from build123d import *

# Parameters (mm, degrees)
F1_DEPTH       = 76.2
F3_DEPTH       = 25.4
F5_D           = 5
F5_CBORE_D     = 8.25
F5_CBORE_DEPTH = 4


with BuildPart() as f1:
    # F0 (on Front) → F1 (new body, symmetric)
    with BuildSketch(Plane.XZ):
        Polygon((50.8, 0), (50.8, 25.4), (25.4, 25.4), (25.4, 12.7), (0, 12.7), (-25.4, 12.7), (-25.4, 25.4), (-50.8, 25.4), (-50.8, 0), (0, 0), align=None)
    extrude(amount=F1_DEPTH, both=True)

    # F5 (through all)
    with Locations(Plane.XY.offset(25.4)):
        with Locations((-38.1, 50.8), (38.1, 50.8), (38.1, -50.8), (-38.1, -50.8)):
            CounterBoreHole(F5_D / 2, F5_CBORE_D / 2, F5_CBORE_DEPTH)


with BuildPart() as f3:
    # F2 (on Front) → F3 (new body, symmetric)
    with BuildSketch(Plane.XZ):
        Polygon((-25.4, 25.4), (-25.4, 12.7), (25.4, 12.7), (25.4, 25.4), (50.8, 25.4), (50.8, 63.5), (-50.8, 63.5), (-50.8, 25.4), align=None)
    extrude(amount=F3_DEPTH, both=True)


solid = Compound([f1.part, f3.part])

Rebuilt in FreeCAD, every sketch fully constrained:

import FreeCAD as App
import Part
import Sketcher
Q = App.Units.Quantity

doc = App.newDocument("Part")
body = doc.addObject("PartDesign::Body", "Body")

# Sketch on XZ plane
sketch1 = body.newObject("Sketcher::SketchObject", "Sketch")
sketch1.AttachmentSupport = (doc.getObject("XZ_Plane"), [""])
sketch1.MapMode = "FlatFace"
sketch1.addGeometry([
    Part.LineSegment(App.Vector(51, 0, 0), App.Vector(51, 25, 0)),  # 0
    Part.LineSegment(App.Vector(51, 25, 0), App.Vector(25, 25, 0)),  # 1
    Part.LineSegment(App.Vector(25, 25, 0), App.Vector(25, 13, 0)),  # 2
    Part.LineSegment(App.Vector(25, 13, 0), App.Vector(-25, 13, 0)),  # 3
    Part.LineSegment(App.Vector(-25, 13, 0), App.Vector(-25, 25, 0)),  # 4
    Part.LineSegment(App.Vector(-25, 25, 0), App.Vector(-51, 25, 0)),  # 5
    Part.LineSegment(App.Vector(-51, 25, 0), App.Vector(-51, 0, 0)),  # 6
    Part.LineSegment(App.Vector(-51, 0, 0), App.Vector(51, 0, 0)),  # 7
], False)
sketch1.addConstraint([
    Sketcher.Constraint("Coincident", 0, 2, 1, 1),
    Sketcher.Constraint("Coincident", 1, 2, 2, 1),
    Sketcher.Constraint("Coincident", 2, 2, 3, 1),
    Sketcher.Constraint("Coincident", 3, 2, 4, 1),
    Sketcher.Constraint("Coincident", 4, 2, 5, 1),
    Sketcher.Constraint("Coincident", 5, 2, 6, 1),
    Sketcher.Constraint("Coincident", 6, 2, 7, 1),
    Sketcher.Constraint("Coincident", 7, 2, 0, 1),
    Sketcher.Constraint("Vertical", 0),
    Sketcher.Constraint("Horizontal", 1),
    Sketcher.Constraint("Vertical", 2),
    Sketcher.Constraint("Horizontal", 3),
    Sketcher.Constraint("Vertical", 4),
    Sketcher.Constraint("Horizontal", 5),
    Sketcher.Constraint("Vertical", 6),
    Sketcher.Constraint("Horizontal", 7),
    Sketcher.Constraint("Symmetric", 6, 2, 7, 2, -1, 1),
    Sketcher.Constraint("Symmetric", 1, 2, 4, 2, -2),
    Sketcher.Constraint("Equal", 5, 0),
    Sketcher.Constraint("DistanceX", 1, 2, 1, 1, Q("1 in")),
    Sketcher.Constraint("DistanceX", 3, 2, 3, 1, Q("2 in")),
    Sketcher.Constraint("DistanceY", 2, 2, 2, 1, Q("0.5 in")),
])
pad1 = body.newObject("PartDesign::Pad", "Pad")
pad1.Profile = sketch1
pad1.Length = Q("6 in")
pad1.Midplane = True

# Sketch on XY plane
sketch2 = body.newObject("Sketcher::SketchObject", "Sketch001")
sketch2.AttachmentSupport = (doc.getObject("XY_Plane"), [""])
sketch2.MapMode = "FlatFace"
sketch2.AttachmentOffset = App.Placement(App.Vector(0, 0, 1 * 25.4), App.Rotation())
sketch2.addGeometry([
    Part.Circle(App.Vector(-38.1, 50.8, 0), App.Vector(0, 0, 1), 2.5),
    Part.Circle(App.Vector(38.1, 50.8, 0), App.Vector(0, 0, 1), 2.5),
    Part.Circle(App.Vector(38.1, -50.8, 0), App.Vector(0, 0, 1), 2.5),
    Part.Circle(App.Vector(-38.1, -50.8, 0), App.Vector(0, 0, 1), 2.5),
], False)
sketch2.addConstraint([
    Sketcher.Constraint("Equal", 0, 1),
    Sketcher.Constraint("Equal", 1, 2),
    Sketcher.Constraint("Equal", 2, 3),
    Sketcher.Constraint("Symmetric", 0, 3, 2, 3, -1, 1),
    Sketcher.Constraint("Symmetric", 1, 3, 3, 3, -1, 1),
    Sketcher.Constraint("Symmetric", 0, 3, 1, 3, -2),
    Sketcher.Constraint("DistanceY", -1, 1, 0, 3, Q("2 in")),
    Sketcher.Constraint("DistanceX", 0, 3, 1, 3, Q("3 in")),
    Sketcher.Constraint("Diameter", 0, 5.0),
])
doc.recompute()
hole = body.newObject("PartDesign::Hole", "Hole")
hole.Profile = sketch2
hole.ThreadType = "None"
hole.Diameter = 5
hole.DepthType = "ThroughAll"
hole.HoleCutType = "Counterbore"
hole.HoleCutDiameter = 8.25
hole.HoleCutDepth = 4
body2 = doc.addObject("PartDesign::Body", "Body001")

# Sketch on XZ plane
sketch3 = body2.newObject("Sketcher::SketchObject", "Sketch002")
sketch3.AttachmentSupport = (doc.getObject("XZ_Plane001"), [""])
sketch3.MapMode = "FlatFace"
sketch3.addGeometry([
    Part.LineSegment(App.Vector(-25, 25, 0), App.Vector(-25, 13, 0)),  # 0
    Part.LineSegment(App.Vector(-25, 13, 0), App.Vector(25, 13, 0)),  # 1
    Part.LineSegment(App.Vector(25, 13, 0), App.Vector(25, 25, 0)),  # 2
    Part.LineSegment(App.Vector(25, 25, 0), App.Vector(51, 25, 0)),  # 3
    Part.LineSegment(App.Vector(51, 25, 0), App.Vector(51, 64, 0)),  # 4
    Part.LineSegment(App.Vector(51, 64, 0), App.Vector(-51, 64, 0)),  # 5
    Part.LineSegment(App.Vector(-51, 64, 0), App.Vector(-51, 25, 0)),  # 6
    Part.LineSegment(App.Vector(-51, 25, 0), App.Vector(-25, 25, 0)),  # 7
], False)
sketch3.addConstraint([
    Sketcher.Constraint("Coincident", 0, 2, 1, 1),
    Sketcher.Constraint("Coincident", 1, 2, 2, 1),
    Sketcher.Constraint("Coincident", 2, 2, 3, 1),
    Sketcher.Constraint("Coincident", 3, 2, 4, 1),
    Sketcher.Constraint("Coincident", 4, 2, 5, 1),
    Sketcher.Constraint("Coincident", 5, 2, 6, 1),
    Sketcher.Constraint("Coincident", 6, 2, 7, 1),
    Sketcher.Constraint("Coincident", 7, 2, 0, 1),
    Sketcher.Constraint("Vertical", 0),
    Sketcher.Constraint("Horizontal", 1),
    Sketcher.Constraint("Vertical", 2),
    Sketcher.Constraint("Horizontal", 3),
    Sketcher.Constraint("Vertical", 4),
    Sketcher.Constraint("Horizontal", 5),
    Sketcher.Constraint("Vertical", 6),
    Sketcher.Constraint("Horizontal", 7),
    Sketcher.Constraint("Symmetric", 3, 2, 6, 2, -2),
    Sketcher.Constraint("Equal", 3, 7),
    Sketcher.Constraint("DistanceX", 1, 1, 1, 2, Q("2 in")),
    Sketcher.Constraint("DistanceX", 3, 1, 3, 2, Q("1 in")),
    Sketcher.Constraint("DistanceY", 0, 2, 0, 1, Q("0.5 in")),
    Sketcher.Constraint("DistanceY", 4, 1, 4, 2, Q("1.5 in")),
    Sketcher.Constraint("DistanceY", -1, 1, 2, 2, Q("1 in")),
])
pad2 = body2.newObject("PartDesign::Pad", "Pad001")
pad2.Profile = sketch3
pad2.Length = Q("2 in")
pad2.Midplane = True

doc.recompute()
